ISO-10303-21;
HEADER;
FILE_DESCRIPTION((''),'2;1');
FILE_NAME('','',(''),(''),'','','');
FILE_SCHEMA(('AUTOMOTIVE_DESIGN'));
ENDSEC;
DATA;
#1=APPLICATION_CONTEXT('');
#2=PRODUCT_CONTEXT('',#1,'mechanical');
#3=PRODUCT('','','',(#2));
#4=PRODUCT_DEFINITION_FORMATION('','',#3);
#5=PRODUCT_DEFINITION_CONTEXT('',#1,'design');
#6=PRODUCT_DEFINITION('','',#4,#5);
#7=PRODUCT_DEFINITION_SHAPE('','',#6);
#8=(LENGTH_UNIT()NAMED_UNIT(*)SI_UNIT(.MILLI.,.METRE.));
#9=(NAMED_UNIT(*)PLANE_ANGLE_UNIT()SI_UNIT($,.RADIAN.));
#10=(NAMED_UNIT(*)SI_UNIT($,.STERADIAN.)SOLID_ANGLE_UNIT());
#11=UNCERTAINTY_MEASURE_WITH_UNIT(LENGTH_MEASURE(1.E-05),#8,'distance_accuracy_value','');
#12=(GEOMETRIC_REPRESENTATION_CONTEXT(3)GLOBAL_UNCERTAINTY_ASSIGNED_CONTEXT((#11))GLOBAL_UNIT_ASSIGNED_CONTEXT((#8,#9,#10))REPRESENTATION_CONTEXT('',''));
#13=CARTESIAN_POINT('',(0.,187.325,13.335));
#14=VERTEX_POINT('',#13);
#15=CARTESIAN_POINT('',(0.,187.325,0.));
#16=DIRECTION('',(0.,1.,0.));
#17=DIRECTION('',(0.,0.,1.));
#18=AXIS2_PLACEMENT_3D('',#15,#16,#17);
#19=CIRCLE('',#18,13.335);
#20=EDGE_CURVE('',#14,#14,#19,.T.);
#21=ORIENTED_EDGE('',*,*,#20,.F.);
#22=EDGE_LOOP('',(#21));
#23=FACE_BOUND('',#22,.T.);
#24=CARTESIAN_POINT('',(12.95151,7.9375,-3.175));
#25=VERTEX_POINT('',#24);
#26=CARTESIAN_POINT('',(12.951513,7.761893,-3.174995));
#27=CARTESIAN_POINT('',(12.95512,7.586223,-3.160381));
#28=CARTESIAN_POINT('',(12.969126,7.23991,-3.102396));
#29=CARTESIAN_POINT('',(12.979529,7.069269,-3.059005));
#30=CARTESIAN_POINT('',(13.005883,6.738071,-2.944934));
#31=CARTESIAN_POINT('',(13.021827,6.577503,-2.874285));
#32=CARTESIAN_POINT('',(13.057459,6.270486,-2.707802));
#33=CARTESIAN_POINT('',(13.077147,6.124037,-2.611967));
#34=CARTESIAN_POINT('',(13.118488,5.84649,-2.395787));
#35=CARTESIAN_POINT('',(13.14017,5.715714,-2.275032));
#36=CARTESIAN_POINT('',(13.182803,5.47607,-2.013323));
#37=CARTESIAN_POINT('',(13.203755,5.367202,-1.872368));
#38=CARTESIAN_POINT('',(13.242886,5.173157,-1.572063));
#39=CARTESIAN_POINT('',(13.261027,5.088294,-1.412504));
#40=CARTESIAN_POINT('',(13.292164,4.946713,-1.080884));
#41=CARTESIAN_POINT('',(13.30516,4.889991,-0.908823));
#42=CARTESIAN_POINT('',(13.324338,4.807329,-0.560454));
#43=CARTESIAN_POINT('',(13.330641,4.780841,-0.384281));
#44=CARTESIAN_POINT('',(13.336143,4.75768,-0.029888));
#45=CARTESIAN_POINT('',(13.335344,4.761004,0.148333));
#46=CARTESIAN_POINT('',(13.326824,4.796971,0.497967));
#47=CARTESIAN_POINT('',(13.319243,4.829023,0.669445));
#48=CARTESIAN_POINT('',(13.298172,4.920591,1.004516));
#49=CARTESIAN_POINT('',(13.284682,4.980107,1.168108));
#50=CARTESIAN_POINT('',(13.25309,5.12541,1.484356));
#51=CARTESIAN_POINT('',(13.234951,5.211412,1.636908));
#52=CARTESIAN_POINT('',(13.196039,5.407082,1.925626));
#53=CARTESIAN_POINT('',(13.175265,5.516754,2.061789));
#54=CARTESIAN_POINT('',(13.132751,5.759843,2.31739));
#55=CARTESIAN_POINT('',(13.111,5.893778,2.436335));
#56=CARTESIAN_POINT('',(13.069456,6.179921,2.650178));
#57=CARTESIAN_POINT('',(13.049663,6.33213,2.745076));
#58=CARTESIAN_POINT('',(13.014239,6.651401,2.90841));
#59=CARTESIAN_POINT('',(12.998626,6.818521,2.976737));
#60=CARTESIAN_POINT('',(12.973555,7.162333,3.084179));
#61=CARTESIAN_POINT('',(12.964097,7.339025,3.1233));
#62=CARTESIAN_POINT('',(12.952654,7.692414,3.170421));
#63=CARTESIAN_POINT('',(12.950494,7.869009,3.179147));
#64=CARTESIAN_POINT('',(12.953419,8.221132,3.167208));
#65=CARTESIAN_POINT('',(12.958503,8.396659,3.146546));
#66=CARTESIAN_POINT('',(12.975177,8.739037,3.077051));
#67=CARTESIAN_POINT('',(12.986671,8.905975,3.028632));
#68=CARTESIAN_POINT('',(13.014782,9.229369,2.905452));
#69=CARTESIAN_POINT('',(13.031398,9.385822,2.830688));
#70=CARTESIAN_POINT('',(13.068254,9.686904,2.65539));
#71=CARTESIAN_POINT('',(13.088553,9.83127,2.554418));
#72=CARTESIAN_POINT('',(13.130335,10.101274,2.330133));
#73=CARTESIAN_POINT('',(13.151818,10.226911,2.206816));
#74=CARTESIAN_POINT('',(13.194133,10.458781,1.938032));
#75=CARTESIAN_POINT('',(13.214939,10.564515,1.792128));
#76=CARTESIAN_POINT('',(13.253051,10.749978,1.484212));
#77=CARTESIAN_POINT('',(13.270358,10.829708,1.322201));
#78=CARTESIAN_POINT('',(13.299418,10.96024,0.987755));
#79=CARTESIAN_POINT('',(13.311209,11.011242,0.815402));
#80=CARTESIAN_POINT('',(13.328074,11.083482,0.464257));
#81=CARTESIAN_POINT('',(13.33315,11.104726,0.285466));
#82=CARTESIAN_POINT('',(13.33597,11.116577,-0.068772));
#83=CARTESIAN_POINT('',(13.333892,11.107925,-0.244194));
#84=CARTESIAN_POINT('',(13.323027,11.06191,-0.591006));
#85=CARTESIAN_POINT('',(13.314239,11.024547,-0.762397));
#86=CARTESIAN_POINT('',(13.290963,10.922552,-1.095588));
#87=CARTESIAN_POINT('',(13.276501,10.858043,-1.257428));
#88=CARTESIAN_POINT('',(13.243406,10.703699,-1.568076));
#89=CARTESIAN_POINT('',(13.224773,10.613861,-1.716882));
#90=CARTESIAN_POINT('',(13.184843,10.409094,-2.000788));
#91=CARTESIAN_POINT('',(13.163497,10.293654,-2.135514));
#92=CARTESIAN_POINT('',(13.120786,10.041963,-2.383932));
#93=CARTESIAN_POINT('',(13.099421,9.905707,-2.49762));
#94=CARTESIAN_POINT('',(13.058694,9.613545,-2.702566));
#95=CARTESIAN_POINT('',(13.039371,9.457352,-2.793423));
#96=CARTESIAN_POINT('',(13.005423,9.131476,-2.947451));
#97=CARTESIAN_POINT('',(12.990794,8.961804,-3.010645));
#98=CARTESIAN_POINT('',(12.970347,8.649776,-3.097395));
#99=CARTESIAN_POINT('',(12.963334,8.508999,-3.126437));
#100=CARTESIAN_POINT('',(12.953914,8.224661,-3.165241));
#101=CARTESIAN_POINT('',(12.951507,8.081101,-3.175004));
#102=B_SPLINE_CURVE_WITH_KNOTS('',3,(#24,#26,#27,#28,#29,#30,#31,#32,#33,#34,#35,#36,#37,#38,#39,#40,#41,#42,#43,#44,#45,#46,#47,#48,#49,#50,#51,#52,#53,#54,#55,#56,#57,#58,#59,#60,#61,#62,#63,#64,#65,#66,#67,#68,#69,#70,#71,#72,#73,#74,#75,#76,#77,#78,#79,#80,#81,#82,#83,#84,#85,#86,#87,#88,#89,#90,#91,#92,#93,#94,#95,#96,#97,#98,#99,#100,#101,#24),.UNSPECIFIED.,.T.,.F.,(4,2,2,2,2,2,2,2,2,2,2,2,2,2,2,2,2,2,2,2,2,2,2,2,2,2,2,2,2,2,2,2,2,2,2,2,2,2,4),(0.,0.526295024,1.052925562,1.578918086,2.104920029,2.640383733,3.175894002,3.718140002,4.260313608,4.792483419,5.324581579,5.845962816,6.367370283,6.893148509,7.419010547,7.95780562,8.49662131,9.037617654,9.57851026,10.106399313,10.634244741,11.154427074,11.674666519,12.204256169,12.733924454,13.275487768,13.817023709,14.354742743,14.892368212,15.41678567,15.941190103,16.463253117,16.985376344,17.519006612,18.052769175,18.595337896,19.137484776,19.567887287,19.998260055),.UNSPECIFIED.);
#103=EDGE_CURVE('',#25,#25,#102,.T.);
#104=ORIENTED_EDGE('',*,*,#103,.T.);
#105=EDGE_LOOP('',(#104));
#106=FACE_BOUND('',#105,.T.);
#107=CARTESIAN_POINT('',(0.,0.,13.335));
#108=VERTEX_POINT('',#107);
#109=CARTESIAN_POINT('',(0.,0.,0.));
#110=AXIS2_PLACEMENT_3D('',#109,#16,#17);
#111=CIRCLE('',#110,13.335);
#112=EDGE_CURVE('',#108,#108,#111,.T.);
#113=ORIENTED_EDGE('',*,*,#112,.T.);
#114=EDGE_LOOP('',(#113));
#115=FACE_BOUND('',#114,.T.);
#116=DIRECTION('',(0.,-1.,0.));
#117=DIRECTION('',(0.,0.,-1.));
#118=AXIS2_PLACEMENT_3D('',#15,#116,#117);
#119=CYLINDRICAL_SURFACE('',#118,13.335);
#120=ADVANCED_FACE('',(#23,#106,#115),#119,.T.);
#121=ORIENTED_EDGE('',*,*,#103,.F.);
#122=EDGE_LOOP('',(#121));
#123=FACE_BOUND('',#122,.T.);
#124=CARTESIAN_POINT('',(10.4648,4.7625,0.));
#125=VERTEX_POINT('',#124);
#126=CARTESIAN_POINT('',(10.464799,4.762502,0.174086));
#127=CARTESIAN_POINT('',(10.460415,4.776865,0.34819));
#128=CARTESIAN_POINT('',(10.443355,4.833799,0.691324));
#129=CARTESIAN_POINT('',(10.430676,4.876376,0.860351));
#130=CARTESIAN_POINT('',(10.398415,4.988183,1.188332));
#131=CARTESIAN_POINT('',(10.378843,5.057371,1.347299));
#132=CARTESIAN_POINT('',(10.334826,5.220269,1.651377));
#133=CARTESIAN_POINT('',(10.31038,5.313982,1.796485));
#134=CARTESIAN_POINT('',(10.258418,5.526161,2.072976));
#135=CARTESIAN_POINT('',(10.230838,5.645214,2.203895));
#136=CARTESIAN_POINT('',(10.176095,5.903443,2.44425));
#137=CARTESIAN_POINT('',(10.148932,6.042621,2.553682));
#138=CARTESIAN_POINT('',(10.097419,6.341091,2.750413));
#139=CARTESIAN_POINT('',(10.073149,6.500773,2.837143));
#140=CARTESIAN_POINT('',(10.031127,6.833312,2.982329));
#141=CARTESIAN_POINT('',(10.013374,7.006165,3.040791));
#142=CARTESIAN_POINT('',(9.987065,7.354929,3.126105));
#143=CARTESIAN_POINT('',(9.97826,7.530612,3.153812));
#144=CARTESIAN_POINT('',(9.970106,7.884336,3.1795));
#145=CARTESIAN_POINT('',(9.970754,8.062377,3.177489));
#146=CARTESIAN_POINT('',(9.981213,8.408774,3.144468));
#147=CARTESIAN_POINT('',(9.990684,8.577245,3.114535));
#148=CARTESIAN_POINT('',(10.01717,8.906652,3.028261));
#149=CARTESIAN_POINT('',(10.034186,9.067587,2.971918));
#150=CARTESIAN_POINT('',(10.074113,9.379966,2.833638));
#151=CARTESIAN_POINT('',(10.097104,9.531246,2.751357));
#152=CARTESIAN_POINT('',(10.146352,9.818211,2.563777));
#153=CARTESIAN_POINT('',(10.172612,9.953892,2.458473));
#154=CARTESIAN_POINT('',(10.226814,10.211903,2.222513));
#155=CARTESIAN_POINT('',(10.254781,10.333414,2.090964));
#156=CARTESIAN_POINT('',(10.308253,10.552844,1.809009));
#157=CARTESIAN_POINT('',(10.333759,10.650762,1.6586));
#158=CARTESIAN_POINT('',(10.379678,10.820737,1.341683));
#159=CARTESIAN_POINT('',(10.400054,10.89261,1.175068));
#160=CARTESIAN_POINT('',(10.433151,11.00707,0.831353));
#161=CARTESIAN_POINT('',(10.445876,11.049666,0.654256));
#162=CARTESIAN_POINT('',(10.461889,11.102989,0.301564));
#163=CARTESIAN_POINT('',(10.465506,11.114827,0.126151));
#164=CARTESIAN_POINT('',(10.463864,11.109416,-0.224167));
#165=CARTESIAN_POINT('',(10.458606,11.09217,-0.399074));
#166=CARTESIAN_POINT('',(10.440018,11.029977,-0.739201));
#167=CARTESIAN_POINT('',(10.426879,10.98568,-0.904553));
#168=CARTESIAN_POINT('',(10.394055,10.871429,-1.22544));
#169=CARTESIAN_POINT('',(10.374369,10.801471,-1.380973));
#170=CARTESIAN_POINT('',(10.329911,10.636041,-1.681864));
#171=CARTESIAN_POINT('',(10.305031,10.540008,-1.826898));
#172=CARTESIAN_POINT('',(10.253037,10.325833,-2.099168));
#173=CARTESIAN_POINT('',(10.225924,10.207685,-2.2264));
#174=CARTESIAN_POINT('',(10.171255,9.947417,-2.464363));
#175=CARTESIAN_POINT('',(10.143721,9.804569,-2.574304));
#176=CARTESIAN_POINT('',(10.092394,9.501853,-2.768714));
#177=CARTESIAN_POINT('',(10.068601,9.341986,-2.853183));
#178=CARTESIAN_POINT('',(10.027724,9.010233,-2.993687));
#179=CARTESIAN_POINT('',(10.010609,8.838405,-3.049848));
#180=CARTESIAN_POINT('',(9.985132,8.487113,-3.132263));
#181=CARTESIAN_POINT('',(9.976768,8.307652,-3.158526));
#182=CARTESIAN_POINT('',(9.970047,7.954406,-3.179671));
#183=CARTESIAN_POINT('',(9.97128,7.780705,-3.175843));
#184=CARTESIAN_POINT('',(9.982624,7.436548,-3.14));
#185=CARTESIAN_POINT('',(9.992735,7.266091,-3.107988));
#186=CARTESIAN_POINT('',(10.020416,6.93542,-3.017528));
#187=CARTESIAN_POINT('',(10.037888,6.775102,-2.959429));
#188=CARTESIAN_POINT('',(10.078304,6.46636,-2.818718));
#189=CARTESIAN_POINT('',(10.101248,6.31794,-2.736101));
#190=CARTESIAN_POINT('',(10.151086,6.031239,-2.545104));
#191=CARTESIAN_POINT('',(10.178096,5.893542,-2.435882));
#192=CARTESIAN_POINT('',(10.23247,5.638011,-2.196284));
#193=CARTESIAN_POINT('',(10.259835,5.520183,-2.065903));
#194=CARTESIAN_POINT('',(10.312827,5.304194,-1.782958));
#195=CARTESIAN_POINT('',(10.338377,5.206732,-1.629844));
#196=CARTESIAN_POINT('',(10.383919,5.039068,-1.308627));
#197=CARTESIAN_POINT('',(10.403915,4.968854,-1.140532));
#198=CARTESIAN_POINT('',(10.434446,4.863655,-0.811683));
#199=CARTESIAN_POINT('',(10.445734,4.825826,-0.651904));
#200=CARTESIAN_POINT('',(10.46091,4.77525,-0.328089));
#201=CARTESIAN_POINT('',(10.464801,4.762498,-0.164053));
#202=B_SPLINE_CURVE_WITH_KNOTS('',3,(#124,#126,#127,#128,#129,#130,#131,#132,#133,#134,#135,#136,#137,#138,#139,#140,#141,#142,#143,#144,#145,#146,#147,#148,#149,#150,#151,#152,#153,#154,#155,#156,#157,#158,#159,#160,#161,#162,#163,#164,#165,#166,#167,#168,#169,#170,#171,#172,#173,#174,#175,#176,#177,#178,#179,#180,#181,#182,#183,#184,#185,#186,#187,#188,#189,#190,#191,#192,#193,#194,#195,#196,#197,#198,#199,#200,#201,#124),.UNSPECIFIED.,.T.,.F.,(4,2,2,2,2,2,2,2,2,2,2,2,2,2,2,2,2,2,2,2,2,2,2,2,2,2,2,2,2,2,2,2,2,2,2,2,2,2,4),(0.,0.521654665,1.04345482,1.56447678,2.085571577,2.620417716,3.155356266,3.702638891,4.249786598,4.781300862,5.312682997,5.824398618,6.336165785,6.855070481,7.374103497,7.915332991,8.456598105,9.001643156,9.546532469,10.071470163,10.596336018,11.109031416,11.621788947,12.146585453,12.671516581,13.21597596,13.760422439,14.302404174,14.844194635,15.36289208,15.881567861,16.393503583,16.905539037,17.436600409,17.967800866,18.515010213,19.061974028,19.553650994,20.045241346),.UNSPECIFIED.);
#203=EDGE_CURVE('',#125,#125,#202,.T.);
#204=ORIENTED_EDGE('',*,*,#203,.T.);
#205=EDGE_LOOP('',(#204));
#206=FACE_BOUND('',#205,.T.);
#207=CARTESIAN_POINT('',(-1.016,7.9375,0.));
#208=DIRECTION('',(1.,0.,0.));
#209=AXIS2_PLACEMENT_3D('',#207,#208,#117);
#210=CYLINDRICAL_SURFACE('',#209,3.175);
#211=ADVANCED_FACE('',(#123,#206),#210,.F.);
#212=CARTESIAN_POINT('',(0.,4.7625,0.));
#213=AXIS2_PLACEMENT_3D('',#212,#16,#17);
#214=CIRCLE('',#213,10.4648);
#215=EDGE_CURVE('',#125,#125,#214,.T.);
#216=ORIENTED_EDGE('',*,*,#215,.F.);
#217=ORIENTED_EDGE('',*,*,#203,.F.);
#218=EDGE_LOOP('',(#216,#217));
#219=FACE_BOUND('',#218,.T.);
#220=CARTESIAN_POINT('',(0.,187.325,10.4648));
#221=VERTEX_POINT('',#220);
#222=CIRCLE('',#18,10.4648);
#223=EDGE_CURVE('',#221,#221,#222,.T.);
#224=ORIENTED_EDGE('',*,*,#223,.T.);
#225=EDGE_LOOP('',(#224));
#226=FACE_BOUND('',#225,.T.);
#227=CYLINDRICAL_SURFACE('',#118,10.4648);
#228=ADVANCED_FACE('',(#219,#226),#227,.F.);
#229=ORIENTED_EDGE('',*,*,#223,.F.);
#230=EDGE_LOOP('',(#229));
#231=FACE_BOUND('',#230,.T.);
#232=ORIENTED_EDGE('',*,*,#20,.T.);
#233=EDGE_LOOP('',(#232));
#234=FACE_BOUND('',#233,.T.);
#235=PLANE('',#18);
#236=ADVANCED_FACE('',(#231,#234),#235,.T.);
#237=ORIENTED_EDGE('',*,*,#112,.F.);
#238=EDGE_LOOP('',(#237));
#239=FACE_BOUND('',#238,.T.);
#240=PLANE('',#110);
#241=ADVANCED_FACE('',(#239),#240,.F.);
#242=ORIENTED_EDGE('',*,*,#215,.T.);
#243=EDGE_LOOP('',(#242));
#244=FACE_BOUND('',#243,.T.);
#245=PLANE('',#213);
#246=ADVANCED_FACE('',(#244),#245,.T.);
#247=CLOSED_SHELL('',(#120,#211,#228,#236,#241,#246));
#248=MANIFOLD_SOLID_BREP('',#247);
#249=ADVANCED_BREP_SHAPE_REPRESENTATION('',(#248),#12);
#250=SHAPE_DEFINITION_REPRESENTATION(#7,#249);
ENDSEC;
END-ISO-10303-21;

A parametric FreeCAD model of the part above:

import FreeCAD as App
import Part
import Sketcher
Q = App.Units.Quantity

doc = App.newDocument("Part")
body = doc.addObject("PartDesign::Body", "Body")

sketch1 = body.newObject("Sketcher::SketchObject", "Sketch")
sketch1.AttachmentSupport = (doc.getObject("XZ_Plane"), [""])
sketch1.MapMode = "FlatFace"
sketch1.addGeometry([
    Part.Circle(App.Vector(0, 0, 0), App.Vector(0, 0, 1), 13.335),
    Part.Circle(App.Vector(0, 0, 0), App.Vector(0, 0, 1), 10.4648),
], False)
sketch1.addConstraint([
    Sketcher.Constraint("Coincident", 0, 3, -1, 1),
    Sketcher.Constraint("Coincident", 1, 3, -1, 1),
    Sketcher.Constraint("Diameter", 0, Q("1.05 in")),
    Sketcher.Constraint("Diameter", 1, Q("0.824 in")),
])
pad1 = body.newObject("PartDesign::Pad", "Pad")
pad1.Profile = sketch1
pad1.Length = Q("7.375 in")
pad1.Reversed = True

sketch2 = body.newObject("Sketcher::SketchObject", "Sketch001")
sketch2.AttachmentSupport = (doc.getObject("XZ_Plane"), [""])
sketch2.MapMode = "FlatFace"
sketch2.addGeometry(Part.Circle(App.Vector(0, 0, 0), App.Vector(0, 0, 1), 10.4648), False)
sketch2.addConstraint([
    Sketcher.Constraint("Coincident", 0, 3, -1, 1),
    Sketcher.Constraint("Diameter", 0, Q("0.824 in")),
])
pad2 = body.newObject("PartDesign::Pad", "Pad001")
pad2.Profile = sketch2
pad2.Length = Q("0.1875 in")
pad2.Reversed = True

sketch3 = body.newObject("Sketcher::SketchObject", "Sketch002")
sketch3.AttachmentSupport = (doc.getObject("YZ_Plane"), [""])
sketch3.MapMode = "FlatFace"
sketch3.AttachmentOffset = App.Placement(App.Vector(0, 0, 0.525 * 25.4), App.Rotation())
sketch3.addGeometry(Part.Circle(App.Vector(7.9375, 0, 0), App.Vector(0, 0, 1), 3.175), False)
sketch3.addConstraint([
    Sketcher.Constraint("PointOnObject", 0, 3, -1),
    Sketcher.Constraint("Diameter", 0, Q("0.25 in")),
    Sketcher.Constraint("DistanceX", -1, 1, 0, 3, Q("0.3125 in")),
])
pocket1 = body.newObject("PartDesign::Pocket", "Pocket")
pocket1.Profile = sketch3
pocket1.Length = Q("0.565 in")

doc.recompute()
